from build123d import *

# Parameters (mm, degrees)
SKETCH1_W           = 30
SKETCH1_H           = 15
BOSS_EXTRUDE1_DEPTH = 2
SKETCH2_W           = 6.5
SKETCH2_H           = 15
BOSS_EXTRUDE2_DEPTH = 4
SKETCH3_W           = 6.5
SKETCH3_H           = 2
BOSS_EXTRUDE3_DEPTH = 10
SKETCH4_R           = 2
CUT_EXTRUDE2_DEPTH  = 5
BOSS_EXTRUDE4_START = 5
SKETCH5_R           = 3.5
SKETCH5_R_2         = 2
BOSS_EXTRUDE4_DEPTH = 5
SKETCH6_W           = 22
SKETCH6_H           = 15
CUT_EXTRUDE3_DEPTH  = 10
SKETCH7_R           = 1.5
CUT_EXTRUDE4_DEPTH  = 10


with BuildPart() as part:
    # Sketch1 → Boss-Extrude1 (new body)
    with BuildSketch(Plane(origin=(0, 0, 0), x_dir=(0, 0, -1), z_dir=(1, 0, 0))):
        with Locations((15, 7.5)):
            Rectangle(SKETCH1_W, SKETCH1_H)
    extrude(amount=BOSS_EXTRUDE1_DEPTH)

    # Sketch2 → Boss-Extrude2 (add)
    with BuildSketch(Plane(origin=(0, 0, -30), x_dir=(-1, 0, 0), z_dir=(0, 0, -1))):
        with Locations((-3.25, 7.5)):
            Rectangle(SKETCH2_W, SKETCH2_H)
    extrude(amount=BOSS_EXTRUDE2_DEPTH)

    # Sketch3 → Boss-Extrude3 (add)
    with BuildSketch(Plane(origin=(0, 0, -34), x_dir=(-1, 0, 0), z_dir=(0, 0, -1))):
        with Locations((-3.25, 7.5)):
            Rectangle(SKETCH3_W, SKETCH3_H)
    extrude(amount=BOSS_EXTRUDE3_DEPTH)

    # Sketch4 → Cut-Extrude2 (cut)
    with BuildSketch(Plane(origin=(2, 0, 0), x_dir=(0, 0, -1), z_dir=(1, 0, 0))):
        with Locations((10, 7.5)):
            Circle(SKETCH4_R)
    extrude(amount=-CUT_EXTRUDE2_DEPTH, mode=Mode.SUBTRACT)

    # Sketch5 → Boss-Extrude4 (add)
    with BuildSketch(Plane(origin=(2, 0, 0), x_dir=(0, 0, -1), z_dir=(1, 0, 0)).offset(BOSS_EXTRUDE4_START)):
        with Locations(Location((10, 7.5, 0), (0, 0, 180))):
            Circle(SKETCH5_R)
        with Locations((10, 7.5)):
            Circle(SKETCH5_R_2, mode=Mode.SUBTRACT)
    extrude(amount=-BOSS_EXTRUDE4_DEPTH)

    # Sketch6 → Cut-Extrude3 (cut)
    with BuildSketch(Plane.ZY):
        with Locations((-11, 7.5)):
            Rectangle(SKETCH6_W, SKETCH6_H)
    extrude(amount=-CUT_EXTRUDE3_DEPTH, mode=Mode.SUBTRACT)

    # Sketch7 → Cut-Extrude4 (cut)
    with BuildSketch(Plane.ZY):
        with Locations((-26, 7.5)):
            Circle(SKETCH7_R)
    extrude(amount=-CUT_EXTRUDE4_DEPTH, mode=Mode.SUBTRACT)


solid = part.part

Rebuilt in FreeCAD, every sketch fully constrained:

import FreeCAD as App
import Part
import Sketcher

V = App.Vector


def add_polygon(sketch, points):
    """Adds a closed chain of lines whose ends are joined by coincident constraints."""
    first, n = sketch.GeometryCount, len(points)
    for a, b in zip(points, points[1:] + points[:1]):
        sketch.addGeometry(Part.LineSegment(App.Vector(*a, 0), App.Vector(*b, 0)), False)
    for i in range(n):
        sketch.addConstraint(Sketcher.Constraint("Coincident", first + i, 2, first + (i + 1) % n, 1))

doc = App.newDocument("Part")
params = doc.addObject("Spreadsheet::Sheet", "Params")
for row, (alias, value) in enumerate([
    ("sketch1_width", "15 mm"),
    ("sketch1_height", "30 mm"),
    ("pad1_length", "2 mm"),
    ("sketch2_height", "15 mm"),
    ("sketch2_width", "6.5 mm"),
    ("pad2_length", "4 mm"),
    ("sketch3_height", "2 mm"),
    ("sketch3_width", "6.5 mm"),
    ("pad3_length", "10 mm"),
    ("sketch4_diameter", "4 mm"),
    ("pocket1_length", "5 mm"),
    ("sketch5_diameter", "7 mm"),
    ("sketch5_diameter2", "4 mm"),
    ("pad4_length", "5 mm"),
    ("sketch6_width", "15 mm"),
    ("sketch6_height", "22 mm"),
    ("pocket2_length", "10 mm"),
    ("sketch7_diameter", "3 mm"),
    ("pocket3_length", "10 mm"),
], start=1):
    params.set(f"A{row}", alias)
    params.set(f"B{row}", "=" + value)
    params.setAlias(f"B{row}", alias)

body = doc.addObject("PartDesign::Body", "Body")

# Sketch on YZ plane
sketch1 = body.newObject("Sketcher::SketchObject", "Sketch")
sketch1.AttachmentSupport = (doc.getObject("YZ_Plane"), [""])
sketch1.MapMode = "FlatFace"
add_polygon(sketch1, [(15, 0), (0, 0), (0, -30), (15, -30)])  # lines 0-3
sketch1.addConstraint(Sketcher.Constraint("Horizontal", 0))
sketch1.addConstraint(Sketcher.Constraint("Vertical", 1))
sketch1.addConstraint(Sketcher.Constraint("Horizontal", 2))
sketch1.addConstraint(Sketcher.Constraint("Vertical", 3))
sketch1.addConstraint(Sketcher.Constraint("Coincident", 0, 2, -1, 1))
sketch1.addConstraint(Sketcher.Constraint("DistanceX", 0, 2, 0, 1, 15.0))
sketch1.addConstraint(Sketcher.Constraint("DistanceY", 1, 2, 1, 1, 30.0))
sketch1.setExpression("Constraints[9]", "Params.sketch1_width")
sketch1.setExpression("Constraints[10]", "Params.sketch1_height")
pad1 = body.newObject("PartDesign::Pad", "Pad")
pad1.Profile = sketch1
pad1.setExpression("Length", "Params.pad1_length")

# Sketch on XY plane
sketch2 = body.newObject("Sketcher::SketchObject", "Sketch001")
sketch2.AttachmentSupport = (doc.getObject("XY_Plane"), [""])
sketch2.MapMode = "FlatFace"
sketch2.AttachmentOffset = App.Placement(V(0, 0, -30), App.Rotation())
add_polygon(sketch2, [(6, 15), (6, 0), (0, 0), (0, 15)])  # lines 0-3
sketch2.addConstraint(Sketcher.Constraint("Vertical", 0))
sketch2.addConstraint(Sketcher.Constraint("Horizontal", 1))
sketch2.addConstraint(Sketcher.Constraint("Vertical", 2))
sketch2.addConstraint(Sketcher.Constraint("Horizontal", 3))
sketch2.addConstraint(Sketcher.Constraint("Coincident", 1, 2, -1, 1))
sketch2.addConstraint(Sketcher.Constraint("DistanceY", 0, 2, 0, 1, 15.0))
sketch2.addConstraint(Sketcher.Constraint("DistanceX", 1, 2, 1, 1, 6.5))
sketch2.setExpression("Constraints[9]", "Params.sketch2_height")
sketch2.setExpression("Constraints[10]", "Params.sketch2_width")
pad2 = body.newObject("PartDesign::Pad", "Pad001")
pad2.Profile = sketch2
pad2.setExpression("Length", "Params.pad2_length")
pad2.Reversed = True

# Sketch on XY plane
sketch3 = body.newObject("Sketcher::SketchObject", "Sketch002")
sketch3.AttachmentSupport = (doc.getObject("XY_Plane"), [""])
sketch3.MapMode = "FlatFace"
sketch3.AttachmentOffset = App.Placement(V(0, 0, -34), App.Rotation())
add_polygon(sketch3, [(6.5, 8.5), (6.5, 6.5), (0, 6.5), (0, 8.5)])  # lines 0-3
sketch3.addConstraint(Sketcher.Constraint("Vertical", 0))
sketch3.addConstraint(Sketcher.Constraint("Horizontal", 1))
sketch3.addConstraint(Sketcher.Constraint("Vertical", 2))
sketch3.addConstraint(Sketcher.Constraint("Horizontal", 3))
sketch3.addConstraint(Sketcher.Constraint("PointOnObject", 1, 2, -2))
sketch3.addConstraint(Sketcher.Constraint("DistanceY", 0, 2, 0, 1, 2.0))
sketch3.addConstraint(Sketcher.Constraint("DistanceX", 1, 2, 1, 1, 6.5))
sketch3.addConstraint(Sketcher.Constraint("DistanceY", -1, 1, 0, 2, 6.5))
sketch3.setExpression("Constraints[9]", "Params.sketch3_height")
sketch3.setExpression("Constraints[10]", "Params.sketch3_width")
pad3 = body.newObject("PartDesign::Pad", "Pad002")
pad3.Profile = sketch3
pad3.setExpression("Length", "Params.pad3_length")
pad3.Reversed = True

# Sketch on YZ plane
sketch4 = body.newObject("Sketcher::SketchObject", "Sketch003")
sketch4.AttachmentSupport = (doc.getObject("YZ_Plane"), [""])
sketch4.MapMode = "FlatFace"
sketch4.AttachmentOffset = App.Placement(V(0, 0, 2), App.Rotation())
sketch4.addGeometry(Part.Circle(V(7.5, -10, 0), V(0, 0, 1), 2), False)
sketch4.addConstraint(Sketcher.Constraint("Diameter", 0, 4.0))
sketch4.addConstraint(Sketcher.Constraint("DistanceY", 0, 3, -1, 1, 10.0))
sketch4.addConstraint(Sketcher.Constraint("DistanceX", -1, 1, 0, 3, 7.5))
sketch4.setExpression("Constraints[0]", "Params.sketch4_diameter")
pocket1 = body.newObject("PartDesign::Pocket", "Pocket")
pocket1.Profile = sketch4
pocket1.setExpression("Length", "Params.pocket1_length")

# Sketch on YZ plane
sketch5 = body.newObject("Sketcher::SketchObject", "Sketch004")
sketch5.AttachmentSupport = (doc.getObject("YZ_Plane"), [""])
sketch5.MapMode = "FlatFace"
sketch5.AttachmentOffset = App.Placement(V(0, 0, 7), App.Rotation())
sketch5.addGeometry(Part.Circle(V(7.5, -10, 0), V(0, 0, 1), 3.5), False)
sketch5.addGeometry(Part.Circle(V(7.5, -10, 0), V(0, 0, 1), 2), False)
sketch5.addConstraint(Sketcher.Constraint("Coincident", 1, 3, 0, 3))
sketch5.addConstraint(Sketcher.Constraint("Diameter", 0, 7.0))
sketch5.addConstraint(Sketcher.Constraint("Diameter", 1, 4.0))
sketch5.addConstraint(Sketcher.Constraint("DistanceY", 0, 3, -1, 1, 10.0))
sketch5.addConstraint(Sketcher.Constraint("DistanceX", -1, 1, 0, 3, 7.5))
sketch5.setExpression("Constraints[1]", "Params.sketch5_diameter")
sketch5.setExpression("Constraints[2]", "Params.sketch5_diameter2")
pad4 = body.newObject("PartDesign::Pad", "Pad003")
pad4.Profile = sketch5
pad4.setExpression("Length", "Params.pad4_length")
pad4.Reversed = True

# Sketch on YZ plane
sketch6 = body.newObject("Sketcher::SketchObject", "Sketch005")
sketch6.AttachmentSupport = (doc.getObject("YZ_Plane"), [""])
sketch6.MapMode = "FlatFace"
add_polygon(sketch6, [(15, -22), (0, -22), (0, 0), (15, 0)])  # lines 0-3
sketch6.addConstraint(Sketcher.Constraint("Horizontal", 0))
sketch6.addConstraint(Sketcher.Constraint("Vertical", 1))
sketch6.addConstraint(Sketcher.Constraint("Horizontal", 2))
sketch6.addConstraint(Sketcher.Constraint("Vertical", 3))
sketch6.addConstraint(Sketcher.Constraint("Coincident", 1, 2, -1, 1))
sketch6.addConstraint(Sketcher.Constraint("DistanceX", 0, 2, 0, 1, 15.0))
sketch6.addConstraint(Sketcher.Constraint("DistanceY", 1, 1, 1, 2, 22.0))
sketch6.setExpression("Constraints[9]", "Params.sketch6_width")
sketch6.setExpression("Constraints[10]", "Params.sketch6_height")
pocket2 = body.newObject("PartDesign::Pocket", "Pocket001")
pocket2.Profile = sketch6
pocket2.setExpression("Length", "Params.pocket2_length")
pocket2.Reversed = True

# Sketch on YZ plane
sketch7 = body.newObject("Sketcher::SketchObject", "Sketch006")
sketch7.AttachmentSupport = (doc.getObject("YZ_Plane"), [""])
sketch7.MapMode = "FlatFace"
sketch7.addGeometry(Part.Circle(V(7.5, -26, 0), V(0, 0, 1), 1.5), False)
sketch7.addConstraint(Sketcher.Constraint("Diameter", 0, 3.0))
sketch7.addConstraint(Sketcher.Constraint("DistanceY", 0, 3, -1, 1, 26.0))
sketch7.addConstraint(Sketcher.Constraint("DistanceX", -1, 1, 0, 3, 7.5))
sketch7.setExpression("Constraints[0]", "Params.sketch7_diameter")
pocket3 = body.newObject("PartDesign::Pocket", "Pocket002")
pocket3.Profile = sketch7
pocket3.setExpression("Length", "Params.pocket3_length")
pocket3.Reversed = True

doc.recompute()
